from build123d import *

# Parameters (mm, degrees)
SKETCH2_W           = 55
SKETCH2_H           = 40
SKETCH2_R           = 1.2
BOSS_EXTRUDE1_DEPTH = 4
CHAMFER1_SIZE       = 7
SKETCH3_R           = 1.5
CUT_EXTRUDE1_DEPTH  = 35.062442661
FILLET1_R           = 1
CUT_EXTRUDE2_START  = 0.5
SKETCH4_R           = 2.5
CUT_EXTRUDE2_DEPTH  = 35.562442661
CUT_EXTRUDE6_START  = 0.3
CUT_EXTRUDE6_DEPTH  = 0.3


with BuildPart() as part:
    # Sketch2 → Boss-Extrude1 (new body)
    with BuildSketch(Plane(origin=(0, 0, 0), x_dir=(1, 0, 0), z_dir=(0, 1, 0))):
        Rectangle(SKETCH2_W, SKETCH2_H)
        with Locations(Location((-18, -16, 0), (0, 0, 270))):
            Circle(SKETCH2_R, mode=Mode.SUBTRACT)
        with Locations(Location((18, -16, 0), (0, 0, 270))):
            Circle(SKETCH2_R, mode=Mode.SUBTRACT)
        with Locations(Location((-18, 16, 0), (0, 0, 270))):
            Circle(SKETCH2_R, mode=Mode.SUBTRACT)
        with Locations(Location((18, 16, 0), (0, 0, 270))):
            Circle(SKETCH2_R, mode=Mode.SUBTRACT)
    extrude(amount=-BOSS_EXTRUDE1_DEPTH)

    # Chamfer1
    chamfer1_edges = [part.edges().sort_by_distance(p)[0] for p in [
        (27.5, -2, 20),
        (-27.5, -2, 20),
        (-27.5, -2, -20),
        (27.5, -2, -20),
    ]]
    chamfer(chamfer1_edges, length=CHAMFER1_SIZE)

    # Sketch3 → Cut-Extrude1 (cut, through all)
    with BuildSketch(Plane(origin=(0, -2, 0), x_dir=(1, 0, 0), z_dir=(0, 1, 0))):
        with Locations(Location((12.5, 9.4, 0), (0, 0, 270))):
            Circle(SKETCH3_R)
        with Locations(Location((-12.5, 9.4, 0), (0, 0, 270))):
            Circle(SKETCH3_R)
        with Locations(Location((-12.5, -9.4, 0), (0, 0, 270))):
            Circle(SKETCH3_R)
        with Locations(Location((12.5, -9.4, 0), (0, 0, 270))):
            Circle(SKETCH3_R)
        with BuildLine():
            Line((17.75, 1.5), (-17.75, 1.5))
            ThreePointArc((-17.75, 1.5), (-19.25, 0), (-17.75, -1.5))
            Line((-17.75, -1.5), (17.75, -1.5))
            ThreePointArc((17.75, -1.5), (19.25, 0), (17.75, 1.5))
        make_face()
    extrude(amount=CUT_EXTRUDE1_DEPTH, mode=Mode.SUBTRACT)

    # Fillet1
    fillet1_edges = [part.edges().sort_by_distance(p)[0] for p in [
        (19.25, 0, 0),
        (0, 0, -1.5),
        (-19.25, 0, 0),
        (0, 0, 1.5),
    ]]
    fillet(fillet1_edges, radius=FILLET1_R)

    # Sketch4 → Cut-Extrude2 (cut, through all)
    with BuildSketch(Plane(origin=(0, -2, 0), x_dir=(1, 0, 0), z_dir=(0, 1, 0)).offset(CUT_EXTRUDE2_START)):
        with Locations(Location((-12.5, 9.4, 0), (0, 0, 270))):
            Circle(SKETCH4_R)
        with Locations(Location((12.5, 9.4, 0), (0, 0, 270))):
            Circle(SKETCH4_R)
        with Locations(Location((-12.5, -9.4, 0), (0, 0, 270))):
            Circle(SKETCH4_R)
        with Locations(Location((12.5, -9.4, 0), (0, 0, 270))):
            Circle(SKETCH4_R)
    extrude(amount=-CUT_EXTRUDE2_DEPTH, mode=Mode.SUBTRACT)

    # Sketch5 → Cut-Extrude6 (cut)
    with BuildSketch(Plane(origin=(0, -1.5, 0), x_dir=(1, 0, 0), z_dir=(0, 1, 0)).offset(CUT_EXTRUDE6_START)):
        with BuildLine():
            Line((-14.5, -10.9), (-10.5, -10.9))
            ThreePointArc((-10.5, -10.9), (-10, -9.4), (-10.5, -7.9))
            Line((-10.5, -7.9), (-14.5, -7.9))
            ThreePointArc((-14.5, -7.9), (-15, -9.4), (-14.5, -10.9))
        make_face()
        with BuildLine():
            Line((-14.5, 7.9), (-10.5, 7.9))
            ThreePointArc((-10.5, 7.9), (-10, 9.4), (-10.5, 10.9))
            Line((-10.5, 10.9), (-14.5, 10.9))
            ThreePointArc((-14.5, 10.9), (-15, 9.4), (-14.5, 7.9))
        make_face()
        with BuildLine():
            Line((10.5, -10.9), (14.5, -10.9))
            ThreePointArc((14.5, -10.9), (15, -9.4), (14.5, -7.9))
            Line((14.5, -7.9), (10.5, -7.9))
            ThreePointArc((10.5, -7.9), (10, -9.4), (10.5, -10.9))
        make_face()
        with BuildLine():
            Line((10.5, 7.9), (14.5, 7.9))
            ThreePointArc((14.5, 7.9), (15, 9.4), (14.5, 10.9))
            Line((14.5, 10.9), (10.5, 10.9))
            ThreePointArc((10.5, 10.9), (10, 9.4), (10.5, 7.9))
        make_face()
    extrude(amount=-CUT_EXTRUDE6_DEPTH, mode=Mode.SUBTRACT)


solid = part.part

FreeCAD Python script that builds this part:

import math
import FreeCAD as App
import Part
import Sketcher

V = App.Vector


def edges_at(feature, points):
    """Names of the edges that pass closest to the given points."""
    edges = feature.Shape.Edges
    near = lambda p: min(range(len(edges)), key=lambda i: edges[i].distToShape(Part.Vertex(*p))[0])
    return sorted({f"Edge{near(p) + 1}" for p in points})

doc = App.newDocument("Part")
body = doc.addObject("PartDesign::Body", "Body")

# Sketch on XZ plane
sketch1 = body.newObject("Sketcher::SketchObject", "Sketch")
sketch1.AttachmentSupport = (doc.getObject("XZ_Plane"), [""])
sketch1.MapMode = "FlatFace"
sketch1.addGeometry(Part.LineSegment(V(-27.5, -20, 0), V(-27.5, 20, 0)), False)
sketch1.addGeometry(Part.LineSegment(V(-27.5, 20, 0), V(27.5, 20, 0)), False)
sketch1.addGeometry(Part.LineSegment(V(27.5, 20, 0), V(27.5, -20, 0)), False)
sketch1.addGeometry(Part.LineSegment(V(27.5, -20, 0), V(-27.5, -20, 0)), False)
sketch1.addGeometry(Part.Circle(V(-18, 16, 0), V(0, 0, 1), 1.2), False)
sketch1.addGeometry(Part.Circle(V(18, 16, 0), V(0, 0, 1), 1.2), False)
sketch1.addGeometry(Part.Circle(V(-18, -16, 0), V(0, 0, 1), 1.2), False)
sketch1.addGeometry(Part.Circle(V(18, -16, 0), V(0, 0, 1), 1.2), False)
sketch1.addConstraint(Sketcher.Constraint("Coincident", 0, 2, 1, 1))
sketch1.addConstraint(Sketcher.Constraint("Coincident", 1, 2, 2, 1))
sketch1.addConstraint(Sketcher.Constraint("Coincident", 2, 2, 3, 1))
sketch1.addConstraint(Sketcher.Constraint("Coincident", 3, 2, 0, 1))
sketch1.addConstraint(Sketcher.Constraint("Vertical", 0))
sketch1.addConstraint(Sketcher.Constraint("Horizontal", 1))
sketch1.addConstraint(Sketcher.Constraint("Vertical", 2))
sketch1.addConstraint(Sketcher.Constraint("Horizontal", 3))
sketch1.addConstraint(Sketcher.Constraint("Equal", 4, 5))
sketch1.addConstraint(Sketcher.Constraint("Equal", 5, 6))
sketch1.addConstraint(Sketcher.Constraint("Equal", 6, 7))
sketch1.addConstraint(Sketcher.Constraint("Symmetric", 5, 3, 6, 3, -1, 1))
sketch1.addConstraint(Sketcher.Constraint("Symmetric", 4, 3, 7, 3, -1, 1))
sketch1.addConstraint(Sketcher.Constraint("Symmetric", 0, 2, 2, 2, -1, 1))
sketch1.addConstraint(Sketcher.Constraint("Symmetric", 4, 3, 5, 3, -2))
sketch1.addConstraint(Sketcher.Constraint("Diameter", 4, 2.4))
sketch1.addConstraint(Sketcher.Constraint("DistanceX", 1, 1, 1, 2, 55.0))
sketch1.addConstraint(Sketcher.Constraint("DistanceY", 0, 1, 0, 2, 40.0))
sketch1.addConstraint(Sketcher.Constraint("DistanceX", 4, 3, -1, 1, 18.0))
sketch1.addConstraint(Sketcher.Constraint("DistanceY", -1, 1, 4, 3, 16.0))
pad1 = body.newObject("PartDesign::Pad", "Pad")
pad1.Profile = sketch1
pad1.Length = 4
doc.recompute()

chamfer = body.newObject("PartDesign::Chamfer", "Chamfer")
chamfer.Base = (pad1, edges_at(pad1, [
    (27.5, -2, 20),
    (-27.5, -2, 20),
    (-27.5, -2, -20),
    (27.5, -2, -20),
]))
chamfer.Size = 7

# Sketch on XZ plane
sketch2 = body.newObject("Sketcher::SketchObject", "Sketch001")
sketch2.AttachmentSupport = (doc.getObject("XZ_Plane"), [""])
sketch2.MapMode = "FlatFace"
sketch2.AttachmentOffset = App.Placement(V(0, 0, 2), App.Rotation())
sketch2.addGeometry(Part.Circle(V(12.5, -9.4, 0), V(0, 0, 1), 1.5), False)
sketch2.addGeometry(Part.Circle(V(-12.5, -9.4, 0), V(0, 0, 1), 1.5), False)
sketch2.addGeometry(Part.Circle(V(-12.5, 9.4, 0), V(0, 0, 1), 1.5), False)
sketch2.addGeometry(Part.Circle(V(12.5, 9.4, 0), V(0, 0, 1), 1.5), False)
sketch2.addGeometry(Part.LineSegment(V(17.8, -1.5, 0), V(-17.8, -1.5, 0)), False)
sketch2.addGeometry(Part.ArcOfCircle(Part.Circle(V(-17.8, 0, 0), V(0, 0, 1), 1.5), math.radians(90), math.radians(270)), False)
sketch2.addGeometry(Part.LineSegment(V(-17.8, 1.5, 0), V(17.8, 1.5, 0)), False)
sketch2.addGeometry(Part.ArcOfCircle(Part.Circle(V(17.8, 0, 0), V(0, 0, 1), 1.5), math.radians(-90), math.radians(90)), False)
sketch2.addConstraint(Sketcher.Constraint("Tangent", 4, 2, 5, 2))
sketch2.addConstraint(Sketcher.Constraint("Tangent", 5, 1, 6, 1))
sketch2.addConstraint(Sketcher.Constraint("Tangent", 6, 2, 7, 2))
sketch2.addConstraint(Sketcher.Constraint("Tangent", 7, 1, 4, 1))
sketch2.addConstraint(Sketcher.Constraint("Horizontal", 4))
sketch2.addConstraint(Sketcher.Constraint("Horizontal", 6))
sketch2.addConstraint(Sketcher.Constraint("Equal", 0, 1))
sketch2.addConstraint(Sketcher.Constraint("Equal", 1, 2))
sketch2.addConstraint(Sketcher.Constraint("Equal", 2, 3))
sketch2.addConstraint(Sketcher.Constraint("Equal", 3, 5))
sketch2.addConstraint(Sketcher.Constraint("Symmetric", 0, 3, 2, 3, -1, 1))
sketch2.addConstraint(Sketcher.Constraint("Symmetric", 1, 3, 3, 3, -1, 1))
sketch2.addConstraint(Sketcher.Constraint("Symmetric", 5, 3, 7, 3, -1, 1))
sketch2.addConstraint(Sketcher.Constraint("Symmetric", 0, 3, 1, 3, -2))
sketch2.addConstraint(Sketcher.Constraint("Diameter", 0, 3.0))
sketch2.addConstraint(Sketcher.Constraint("DistanceX", 4, 2, 4, 1, 35.5))
sketch2.addConstraint(Sketcher.Constraint("DistanceX", 1, 3, 0, 3, 25.0))
sketch2.addConstraint(Sketcher.Constraint("DistanceY", 0, 3, -1, 1, 9.4))
pocket1 = body.newObject("PartDesign::Pocket", "Pocket")
pocket1.Profile = sketch2
pocket1.Type = "ThroughAll"
doc.recompute()

fillet = body.newObject("PartDesign::Fillet", "Fillet")
fillet.Base = (pocket1, edges_at(pocket1, [
    (19.25, 0, 0),
    (0, 0, -1.5),
    (-19.25, 0, 0),
    (0, 0, 1.5),
]))
fillet.Radius = 1

# Sketch on XZ plane
sketch3 = body.newObject("Sketcher::SketchObject", "Sketch002")
sketch3.AttachmentSupport = (doc.getObject("XZ_Plane"), [""])
sketch3.MapMode = "FlatFace"
sketch3.AttachmentOffset = App.Placement(V(0, 0, 1.5), App.Rotation())
sketch3.addGeometry(Part.Circle(V(-12.5, -9.4, 0), V(0, 0, 1), 2.5), False)
sketch3.addGeometry(Part.Circle(V(12.5, -9.4, 0), V(0, 0, 1), 2.5), False)
sketch3.addGeometry(Part.Circle(V(-12.5, 9.4, 0), V(0, 0, 1), 2.5), False)
sketch3.addGeometry(Part.Circle(V(12.5, 9.4, 0), V(0, 0, 1), 2.5), False)
sketch3.addConstraint(Sketcher.Constraint("Equal", 0, 1))
sketch3.addConstraint(Sketcher.Constraint("Equal", 1, 2))
sketch3.addConstraint(Sketcher.Constraint("Equal", 2, 3))
sketch3.addConstraint(Sketcher.Constraint("Symmetric", 1, 3, 2, 3, -1, 1))
sketch3.addConstraint(Sketcher.Constraint("Symmetric", 0, 3, 3, 3, -1, 1))
sketch3.addConstraint(Sketcher.Constraint("Symmetric", 0, 3, 1, 3, -2))
sketch3.addConstraint(Sketcher.Constraint("Diameter", 0, 5.0))
sketch3.addConstraint(Sketcher.Constraint("DistanceX", 0, 3, 1, 3, 25.0))
sketch3.addConstraint(Sketcher.Constraint("DistanceY", 0, 3, -1, 1, 9.4))
pocket2 = body.newObject("PartDesign::Pocket", "Pocket001")
pocket2.Profile = sketch3
pocket2.Type = "ThroughAll"
pocket2.Reversed = True

# Sketch on XZ plane
sketch4 = body.newObject("Sketcher::SketchObject", "Sketch003")
sketch4.AttachmentSupport = (doc.getObject("XZ_Plane"), [""])
sketch4.MapMode = "FlatFace"
sketch4.AttachmentOffset = App.Placement(V(0, 0, 1.2), App.Rotation())
sketch4.addGeometry(Part.LineSegment(V(-14.5, 10.9, 0), V(-10.5, 10.9, 0)), False)
sketch4.addGeometry(Part.ArcOfCircle(Part.Circle(V(-12.5, 9.4, 0), V(0, 0, 1), 2.5), math.radians(-37), math.radians(37)), False)
sketch4.addGeometry(Part.LineSegment(V(-10.5, 7.9, 0), V(-14.5, 7.9, 0)), False)
sketch4.addGeometry(Part.ArcOfCircle(Part.Circle(V(-12.5, 9.4, 0), V(0, 0, 1), 2.5), math.radians(143), math.radians(217)), False)
sketch4.addGeometry(Part.LineSegment(V(-14.5, -7.9, 0), V(-10.5, -7.9, 0)), False)
sketch4.addGeometry(Part.ArcOfCircle(Part.Circle(V(-12.5, -9.4, 0), V(0, 0, 1), 2.5), math.radians(-37), math.radians(37)), False)
sketch4.addGeometry(Part.LineSegment(V(-10.5, -10.9, 0), V(-14.5, -10.9, 0)), False)
sketch4.addGeometry(Part.ArcOfCircle(Part.Circle(V(-12.5, -9.4, 0), V(0, 0, 1), 2.5), math.radians(143), math.radians(217)), False)
sketch4.addGeometry(Part.LineSegment(V(10.5, 10.9, 0), V(14.5, 10.9, 0)), False)
sketch4.addGeometry(Part.ArcOfCircle(Part.Circle(V(12.5, 9.4, 0), V(0, 0, 1), 2.5), math.radians(-37), math.radians(37)), False)
sketch4.addGeometry(Part.LineSegment(V(14.5, 7.9, 0), V(10.5, 7.9, 0)), False)
sketch4.addGeometry(Part.ArcOfCircle(Part.Circle(V(12.5, 9.4, 0), V(0, 0, 1), 2.5), math.radians(143), math.radians(217)), False)
sketch4.addGeometry(Part.LineSegment(V(10.5, -7.9, 0), V(14.5, -7.9, 0)), False)
sketch4.addGeometry(Part.ArcOfCircle(Part.Circle(V(12.5, -9.4, 0), V(0, 0, 1), 2.5), math.radians(-37), math.radians(37)), False)
sketch4.addGeometry(Part.LineSegment(V(14.5, -10.9, 0), V(10.5, -10.9, 0)), False)
sketch4.addGeometry(Part.ArcOfCircle(Part.Circle(V(12.5, -9.4, 0), V(0, 0, 1), 2.5), math.radians(143), math.radians(217)), False)
sketch4.addConstraint(Sketcher.Constraint("Coincident", 0, 2, 1, 2))
sketch4.addConstraint(Sketcher.Constraint("Coincident", 1, 1, 2, 1))
sketch4.addConstraint(Sketcher.Constraint("Coincident", 2, 2, 3, 2))
sketch4.addConstraint(Sketcher.Constraint("Coincident", 3, 1, 0, 1))
sketch4.addConstraint(Sketcher.Constraint("Coincident", 4, 2, 5, 2))
sketch4.addConstraint(Sketcher.Constraint("Coincident", 5, 1, 6, 1))
sketch4.addConstraint(Sketcher.Constraint("Coincident", 6, 2, 7, 2))
sketch4.addConstraint(Sketcher.Constraint("Coincident", 7, 1, 4, 1))
sketch4.addConstraint(Sketcher.Constraint("Coincident", 8, 2, 9, 2))
sketch4.addConstraint(Sketcher.Constraint("Coincident", 9, 1, 10, 1))
sketch4.addConstraint(Sketcher.Constraint("Coincident", 10, 2, 11, 2))
sketch4.addConstraint(Sketcher.Constraint("Coincident", 11, 1, 8, 1))
sketch4.addConstraint(Sketcher.Constraint("Coincident", 12, 2, 13, 2))
sketch4.addConstraint(Sketcher.Constraint("Coincident", 13, 1, 14, 1))
sketch4.addConstraint(Sketcher.Constraint("Coincident", 14, 2, 15, 2))
sketch4.addConstraint(Sketcher.Constraint("Coincident", 15, 1, 12, 1))
sketch4.addConstraint(Sketcher.Constraint("Horizontal", 0))
sketch4.addConstraint(Sketcher.Constraint("Horizontal", 2))
sketch4.addConstraint(Sketcher.Constraint("Horizontal", 4))
sketch4.addConstraint(Sketcher.Constraint("Horizontal", 6))
sketch4.addConstraint(Sketcher.Constraint("Horizontal", 8))
sketch4.addConstraint(Sketcher.Constraint("Horizontal", 10))
sketch4.addConstraint(Sketcher.Constraint("Horizontal", 12))
sketch4.addConstraint(Sketcher.Constraint("Horizontal", 14))
sketch4.addConstraint(Sketcher.Constraint("Coincident", 3, 3, 1, 3))
sketch4.addConstraint(Sketcher.Constraint("Coincident", 7, 3, 5, 3))
sketch4.addConstraint(Sketcher.Constraint("Coincident", 11, 3, 9, 3))
sketch4.addConstraint(Sketcher.Constraint("Coincident", 15, 3, 13, 3))
sketch4.addConstraint(Sketcher.Constraint("Equal", 1, 3))
sketch4.addConstraint(Sketcher.Constraint("Equal", 3, 5))
sketch4.addConstraint(Sketcher.Constraint("Equal", 5, 7))
sketch4.addConstraint(Sketcher.Constraint("Equal", 7, 9))
sketch4.addConstraint(Sketcher.Constraint("Equal", 9, 11))
sketch4.addConstraint(Sketcher.Constraint("Equal", 11, 13))
sketch4.addConstraint(Sketcher.Constraint("Equal", 13, 15))
sketch4.addConstraint(Sketcher.Constraint("Symmetric", 5, 3, 9, 3, -1, 1))
sketch4.addConstraint(Sketcher.Constraint("Symmetric", 1, 3, 13, 3, -1, 1))
sketch4.addConstraint(Sketcher.Constraint("Symmetric", 1, 3, 9, 3, -2))
sketch4.addConstraint(Sketcher.Constraint("Horizontal", 3, 1, 8, 2))
sketch4.addConstraint(Sketcher.Constraint("Horizontal", 2, 2, 9, 1))
sketch4.addConstraint(Sketcher.Constraint("Horizontal", 7, 1, 12, 2))
sketch4.addConstraint(Sketcher.Constraint("Horizontal", 6, 2, 13, 1))
sketch4.addConstraint(Sketcher.Constraint("Vertical", 0, 2, 1, 1))
sketch4.addConstraint(Sketcher.Constraint("Vertical", 1, 1, 4, 2))
sketch4.addConstraint(Sketcher.Constraint("Vertical", 4, 2, 5, 1))
sketch4.addConstraint(Sketcher.Constraint("Radius", 1, 2.5))
sketch4.addConstraint(Sketcher.Constraint("DistanceX", 0, 1, 0, 2, 4.0))
sketch4.addConstraint(Sketcher.Constraint("DistanceX", 1, 3, 9, 3, 25.0))
sketch4.addConstraint(Sketcher.Constraint("DistanceY", -1, 1, 1, 3, 9.4))
pocket3 = body.newObject("PartDesign::Pocket", "Pocket002")
pocket3.Profile = sketch4
pocket3.Length = 0.3
pocket3.Reversed = True

doc.recompute()
